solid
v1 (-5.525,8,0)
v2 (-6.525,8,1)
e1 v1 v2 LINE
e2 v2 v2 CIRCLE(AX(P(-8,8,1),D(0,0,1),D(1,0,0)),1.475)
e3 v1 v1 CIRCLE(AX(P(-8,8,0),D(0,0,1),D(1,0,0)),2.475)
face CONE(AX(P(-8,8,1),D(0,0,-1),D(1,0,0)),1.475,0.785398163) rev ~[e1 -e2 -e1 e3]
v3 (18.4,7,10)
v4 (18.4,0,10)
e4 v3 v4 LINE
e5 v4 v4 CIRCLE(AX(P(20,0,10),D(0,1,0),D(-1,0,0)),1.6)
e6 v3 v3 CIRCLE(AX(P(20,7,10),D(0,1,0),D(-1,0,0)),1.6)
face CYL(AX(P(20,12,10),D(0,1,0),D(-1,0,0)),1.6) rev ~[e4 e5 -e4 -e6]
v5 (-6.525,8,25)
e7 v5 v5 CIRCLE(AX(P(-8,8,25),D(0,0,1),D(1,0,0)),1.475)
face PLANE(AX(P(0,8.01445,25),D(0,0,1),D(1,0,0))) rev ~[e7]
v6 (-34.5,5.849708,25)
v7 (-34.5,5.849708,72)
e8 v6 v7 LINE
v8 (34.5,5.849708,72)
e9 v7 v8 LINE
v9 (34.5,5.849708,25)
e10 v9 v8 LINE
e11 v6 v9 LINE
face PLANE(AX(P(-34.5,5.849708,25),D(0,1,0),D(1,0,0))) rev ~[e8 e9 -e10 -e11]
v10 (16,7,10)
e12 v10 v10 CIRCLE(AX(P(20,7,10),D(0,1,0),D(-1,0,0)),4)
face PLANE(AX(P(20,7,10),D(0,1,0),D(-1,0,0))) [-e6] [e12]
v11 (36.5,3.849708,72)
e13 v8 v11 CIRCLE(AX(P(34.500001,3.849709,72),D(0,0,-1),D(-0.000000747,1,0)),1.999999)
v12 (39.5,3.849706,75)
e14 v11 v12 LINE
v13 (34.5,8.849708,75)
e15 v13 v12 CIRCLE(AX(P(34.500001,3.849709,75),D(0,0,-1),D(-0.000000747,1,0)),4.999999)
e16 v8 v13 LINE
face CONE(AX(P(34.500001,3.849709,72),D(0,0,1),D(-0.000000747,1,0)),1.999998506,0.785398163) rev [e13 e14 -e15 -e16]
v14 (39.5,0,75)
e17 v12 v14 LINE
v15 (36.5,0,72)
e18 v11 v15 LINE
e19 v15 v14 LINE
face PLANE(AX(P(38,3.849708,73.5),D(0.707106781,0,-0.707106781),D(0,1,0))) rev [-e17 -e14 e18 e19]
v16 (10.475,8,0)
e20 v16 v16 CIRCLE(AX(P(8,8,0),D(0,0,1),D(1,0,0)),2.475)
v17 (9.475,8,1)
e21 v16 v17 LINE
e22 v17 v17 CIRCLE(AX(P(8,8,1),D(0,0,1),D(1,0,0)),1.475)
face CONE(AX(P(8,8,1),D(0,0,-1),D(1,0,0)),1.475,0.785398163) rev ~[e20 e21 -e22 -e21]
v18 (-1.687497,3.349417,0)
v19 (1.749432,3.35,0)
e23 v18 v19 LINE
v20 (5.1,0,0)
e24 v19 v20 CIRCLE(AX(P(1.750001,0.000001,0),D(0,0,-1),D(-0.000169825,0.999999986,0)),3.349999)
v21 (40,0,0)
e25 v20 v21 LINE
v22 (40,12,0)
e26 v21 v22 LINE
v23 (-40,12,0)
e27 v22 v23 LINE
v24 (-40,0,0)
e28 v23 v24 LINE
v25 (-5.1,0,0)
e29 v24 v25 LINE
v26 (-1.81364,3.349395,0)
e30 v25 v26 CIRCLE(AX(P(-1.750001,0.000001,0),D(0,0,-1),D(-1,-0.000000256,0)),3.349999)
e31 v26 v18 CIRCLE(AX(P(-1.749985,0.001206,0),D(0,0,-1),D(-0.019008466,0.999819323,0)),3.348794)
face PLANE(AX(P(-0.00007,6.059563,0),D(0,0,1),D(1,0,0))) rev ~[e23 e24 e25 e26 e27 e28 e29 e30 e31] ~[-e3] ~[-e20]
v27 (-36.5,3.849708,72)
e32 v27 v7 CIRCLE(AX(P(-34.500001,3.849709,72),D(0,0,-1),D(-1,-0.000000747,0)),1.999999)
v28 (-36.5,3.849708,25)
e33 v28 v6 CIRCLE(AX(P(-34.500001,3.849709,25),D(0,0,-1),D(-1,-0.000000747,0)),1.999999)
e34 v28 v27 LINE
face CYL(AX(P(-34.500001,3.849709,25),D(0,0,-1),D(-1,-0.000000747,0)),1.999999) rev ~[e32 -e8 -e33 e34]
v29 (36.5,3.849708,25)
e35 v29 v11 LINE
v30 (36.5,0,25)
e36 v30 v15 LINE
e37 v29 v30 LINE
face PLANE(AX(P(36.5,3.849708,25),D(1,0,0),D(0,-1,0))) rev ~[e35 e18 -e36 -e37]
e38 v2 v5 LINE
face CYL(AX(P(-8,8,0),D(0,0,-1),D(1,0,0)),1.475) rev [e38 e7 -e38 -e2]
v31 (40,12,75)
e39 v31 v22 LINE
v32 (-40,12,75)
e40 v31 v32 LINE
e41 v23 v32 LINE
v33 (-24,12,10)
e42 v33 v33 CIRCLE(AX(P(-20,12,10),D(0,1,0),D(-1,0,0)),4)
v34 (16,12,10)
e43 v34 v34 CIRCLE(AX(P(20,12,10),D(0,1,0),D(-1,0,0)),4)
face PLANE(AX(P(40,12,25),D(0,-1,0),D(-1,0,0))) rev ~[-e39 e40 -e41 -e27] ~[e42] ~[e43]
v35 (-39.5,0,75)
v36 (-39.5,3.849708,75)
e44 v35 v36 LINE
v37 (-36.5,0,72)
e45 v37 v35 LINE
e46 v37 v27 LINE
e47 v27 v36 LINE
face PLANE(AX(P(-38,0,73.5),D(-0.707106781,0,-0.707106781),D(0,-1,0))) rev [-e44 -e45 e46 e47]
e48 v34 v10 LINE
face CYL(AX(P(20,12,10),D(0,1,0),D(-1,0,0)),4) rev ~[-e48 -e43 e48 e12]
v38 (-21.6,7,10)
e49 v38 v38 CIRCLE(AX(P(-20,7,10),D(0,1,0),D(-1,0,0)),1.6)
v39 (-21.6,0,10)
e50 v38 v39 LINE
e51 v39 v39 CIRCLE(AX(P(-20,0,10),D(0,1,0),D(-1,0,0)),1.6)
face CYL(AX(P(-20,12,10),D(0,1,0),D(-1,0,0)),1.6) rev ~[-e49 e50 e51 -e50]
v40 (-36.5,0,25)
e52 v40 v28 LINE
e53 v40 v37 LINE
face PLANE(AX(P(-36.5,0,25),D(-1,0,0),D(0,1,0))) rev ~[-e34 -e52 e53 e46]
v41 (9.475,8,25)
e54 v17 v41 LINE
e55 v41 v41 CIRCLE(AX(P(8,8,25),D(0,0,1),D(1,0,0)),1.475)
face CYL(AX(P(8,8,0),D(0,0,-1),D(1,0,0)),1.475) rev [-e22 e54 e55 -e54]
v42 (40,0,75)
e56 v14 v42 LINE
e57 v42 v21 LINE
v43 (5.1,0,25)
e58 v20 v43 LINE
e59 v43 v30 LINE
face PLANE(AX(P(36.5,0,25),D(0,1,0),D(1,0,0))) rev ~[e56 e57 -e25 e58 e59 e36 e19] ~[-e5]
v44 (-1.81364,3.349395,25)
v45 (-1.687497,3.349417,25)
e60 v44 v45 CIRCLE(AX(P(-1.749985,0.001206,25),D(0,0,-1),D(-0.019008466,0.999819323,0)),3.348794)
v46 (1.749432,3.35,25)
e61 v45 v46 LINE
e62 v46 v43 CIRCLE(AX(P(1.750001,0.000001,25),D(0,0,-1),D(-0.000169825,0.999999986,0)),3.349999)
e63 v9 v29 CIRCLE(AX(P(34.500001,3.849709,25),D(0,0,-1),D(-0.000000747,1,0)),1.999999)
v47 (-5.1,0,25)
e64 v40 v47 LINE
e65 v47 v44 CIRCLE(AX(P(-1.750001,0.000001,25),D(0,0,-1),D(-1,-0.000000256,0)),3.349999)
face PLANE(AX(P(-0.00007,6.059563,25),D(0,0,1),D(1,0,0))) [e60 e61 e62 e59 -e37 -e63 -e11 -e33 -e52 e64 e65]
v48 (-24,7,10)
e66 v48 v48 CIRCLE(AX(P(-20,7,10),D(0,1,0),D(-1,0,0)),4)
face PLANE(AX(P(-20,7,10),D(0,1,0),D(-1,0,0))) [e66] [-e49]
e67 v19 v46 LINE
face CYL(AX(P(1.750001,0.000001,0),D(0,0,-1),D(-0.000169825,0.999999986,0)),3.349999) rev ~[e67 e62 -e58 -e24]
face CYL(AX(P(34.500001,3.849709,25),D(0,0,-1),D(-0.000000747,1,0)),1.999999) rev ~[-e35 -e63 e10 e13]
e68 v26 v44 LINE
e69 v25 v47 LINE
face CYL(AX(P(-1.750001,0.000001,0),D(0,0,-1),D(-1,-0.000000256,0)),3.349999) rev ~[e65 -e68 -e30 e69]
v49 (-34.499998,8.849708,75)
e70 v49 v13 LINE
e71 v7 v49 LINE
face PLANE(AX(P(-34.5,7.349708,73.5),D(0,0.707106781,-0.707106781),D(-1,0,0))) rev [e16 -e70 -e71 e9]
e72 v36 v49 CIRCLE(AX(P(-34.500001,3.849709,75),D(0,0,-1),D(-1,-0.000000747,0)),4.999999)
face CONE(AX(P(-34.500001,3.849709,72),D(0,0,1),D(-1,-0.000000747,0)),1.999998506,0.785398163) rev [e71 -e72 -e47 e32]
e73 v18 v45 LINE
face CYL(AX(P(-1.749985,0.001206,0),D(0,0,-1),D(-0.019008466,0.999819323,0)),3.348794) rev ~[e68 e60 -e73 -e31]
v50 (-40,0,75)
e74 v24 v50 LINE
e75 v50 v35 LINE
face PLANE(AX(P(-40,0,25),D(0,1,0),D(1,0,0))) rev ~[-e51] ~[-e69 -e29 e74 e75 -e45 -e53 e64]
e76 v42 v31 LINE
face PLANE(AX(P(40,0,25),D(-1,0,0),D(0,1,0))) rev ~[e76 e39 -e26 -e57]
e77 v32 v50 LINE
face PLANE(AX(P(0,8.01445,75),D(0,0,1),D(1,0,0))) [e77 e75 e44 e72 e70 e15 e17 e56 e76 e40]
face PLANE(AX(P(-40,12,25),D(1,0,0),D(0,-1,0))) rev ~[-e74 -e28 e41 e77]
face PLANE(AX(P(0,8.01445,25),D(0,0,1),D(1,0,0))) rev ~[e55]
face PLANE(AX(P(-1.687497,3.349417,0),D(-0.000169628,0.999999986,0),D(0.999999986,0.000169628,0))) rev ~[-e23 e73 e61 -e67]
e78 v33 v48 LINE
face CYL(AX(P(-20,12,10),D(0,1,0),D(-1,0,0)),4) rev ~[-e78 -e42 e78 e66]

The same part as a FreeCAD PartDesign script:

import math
import FreeCAD as App
import Part
import Sketcher


def edges_at(feature, points):
    """Names of the edges that pass closest to the given points."""
    edges = feature.Shape.Edges
    near = lambda p: min(range(len(edges)), key=lambda i: edges[i].distToShape(Part.Vertex(*p))[0])
    return sorted({f"Edge{near(p) + 1}" for p in points})

doc = App.newDocument("Part")
body = doc.addObject("PartDesign::Body", "Body")

sketch1 = body.newObject("Sketcher::SketchObject", "Sketch")
sketch1.AttachmentSupport = (doc.getObject("XY_Plane"), [""])
sketch1.MapMode = "FlatFace"
sketch1.addGeometry([
    Part.ArcOfCircle(Part.Circle(App.Vector(-1.75, 0, 0), App.Vector(0, 0, 1), 3.35), math.radians(91), math.radians(180)),
    Part.ArcOfCircle(Part.Circle(App.Vector(-1.75, 0, 0), App.Vector(0, 0, 1), 3.35), math.radians(88.93), math.radians(91.09)),
    Part.LineSegment(App.Vector(-1.69, 3.35, 0), App.Vector(1.75, 3.35, 0)),
    Part.ArcOfCircle(Part.Circle(App.Vector(1.75, 0, 0), App.Vector(0, 0, 1), 3.35), math.radians(0), math.radians(90)),
    Part.LineSegment(App.Vector(5.1, 0, 0), App.Vector(40, 0, 0)),
    Part.LineSegment(App.Vector(40, 0, 0), App.Vector(40, 12, 0)),
    Part.LineSegment(App.Vector(40, 12, 0), App.Vector(-40, 12, 0)),
    Part.LineSegment(App.Vector(-40, 12, 0), App.Vector(-40, 0, 0)),
    Part.LineSegment(App.Vector(-40, 0, 0), App.Vector(-5.1, 0, 0)),
    Part.Circle(App.Vector(-8, 8, 0), App.Vector(0, 0, 1), 1.48),
    Part.Circle(App.Vector(8, 8, 0), App.Vector(0, 0, 1), 1.48),
], False)
sketch1.addConstraint([
    Sketcher.Constraint("Coincident", 0, 1, 1, 2),
    Sketcher.Constraint("Coincident", 1, 1, 2, 1),
    Sketcher.Constraint("Tangent", 2, 2, 3, 2),
    Sketcher.Constraint("Coincident", 3, 1, 4, 1),
    Sketcher.Constraint("Coincident", 4, 2, 5, 1),
    Sketcher.Constraint("Coincident", 5, 2, 6, 1),
    Sketcher.Constraint("Coincident", 6, 2, 7, 1),
    Sketcher.Constraint("Coincident", 7, 2, 8, 1),
    Sketcher.Constraint("Coincident", 8, 2, 0, 2),
    Sketcher.Constraint("Horizontal", 4),
    Sketcher.Constraint("Vertical", 5),
    Sketcher.Constraint("Horizontal", 6),
    Sketcher.Constraint("Vertical", 7),
    Sketcher.Constraint("Horizontal", 8),
    Sketcher.Constraint("Equal", 0, 3),
    Sketcher.Constraint("Equal", 9, 10),
    Sketcher.Constraint("Symmetric", 0, 3, 3, 3, -1, 1),
    Sketcher.Constraint("Symmetric", 4, 2, 7, 2, -1, 1),
    Sketcher.Constraint("Symmetric", 9, 3, 10, 3, -2),
    Sketcher.Constraint("PointOnObject", 0, 3, -1),
    Sketcher.Constraint("PointOnObject", 3, 1, -1),
    Sketcher.Constraint("Diameter", 9, 2.95),
    Sketcher.Constraint("DistanceX", 6, 2, 6, 1, 80.0),
    Sketcher.Constraint("DistanceY", 5, 1, 5, 2, 12.0),
    Sketcher.Constraint("Radius", 0, 3.349999),
    Sketcher.Constraint("DistanceX", 4, 1, 4, 2, 34.9),
    Sketcher.Constraint("DistanceX", 9, 3, -1, 1, 8.0),
    Sketcher.Constraint("DistanceY", -1, 1, 9, 3, 8.0),
    Sketcher.Constraint("Radius", 1, 3.348794),
    Sketcher.Constraint("Distance", 2, 3.436929),
    Sketcher.Constraint("DistanceX", 0, 1, -1, 1, 1.81364),
    Sketcher.Constraint("DistanceY", 1, 3, 0, 1, 3.348189),
])
pad1 = body.newObject("PartDesign::Pad", "Pad")
pad1.Profile = sketch1
pad1.Length = 25

sketch2 = body.newObject("Sketcher::SketchObject", "Sketch001")
sketch2.AttachmentSupport = (doc.getObject("XZ_Plane"), [""])
sketch2.MapMode = "FlatFace"
sketch2.AttachmentOffset = App.Placement(App.Vector(0, 0, -12), App.Rotation())
sketch2.addGeometry([
    Part.Circle(App.Vector(20, 10, 0), App.Vector(0, 0, 1), 1.6),
    Part.Circle(App.Vector(-20, 10, 0), App.Vector(0, 0, 1), 1.6),
], False)
sketch2.addConstraint([
    Sketcher.Constraint("Equal", 0, 1),
    Sketcher.Constraint("Symmetric", 0, 3, 1, 3, -2),
    Sketcher.Constraint("Diameter", 0, 3.2),
    Sketcher.Constraint("DistanceX", -1, 1, 0, 3, 20.0),
    Sketcher.Constraint("DistanceY", -1, 1, 0, 3, 10.0),
])
pocket1 = body.newObject("PartDesign::Pocket", "Pocket")
pocket1.Profile = sketch2
pocket1.Length = 30
pocket1.Reversed = True

sketch3 = body.newObject("Sketcher::SketchObject", "Sketch002")
sketch3.AttachmentSupport = (doc.getObject("XZ_Plane"), [""])
sketch3.MapMode = "FlatFace"
sketch3.AttachmentOffset = App.Placement(App.Vector(0, 0, -12), App.Rotation())
sketch3.addGeometry([
    Part.Circle(App.Vector(20, 10, 0), App.Vector(0, 0, 1), 4),
    Part.Circle(App.Vector(20, 10, 0), App.Vector(0, 0, 1), 1.6),
    Part.Circle(App.Vector(-20, 10, 0), App.Vector(0, 0, 1), 4),
    Part.Circle(App.Vector(-20, 10, 0), App.Vector(0, 0, 1), 1.6),
], False)
sketch3.addConstraint([
    Sketcher.Constraint("Coincident", 1, 3, 0, 3),
    Sketcher.Constraint("Coincident", 3, 3, 2, 3),
    Sketcher.Constraint("Equal", 0, 2),
    Sketcher.Constraint("Equal", 1, 3),
    Sketcher.Constraint("Symmetric", 0, 3, 2, 3, -2),
    Sketcher.Constraint("Diameter", 0, 8.0),
    Sketcher.Constraint("Diameter", 1, 3.2),
    Sketcher.Constraint("DistanceX", -1, 1, 0, 3, 20.0),
    Sketcher.Constraint("DistanceY", -1, 1, 0, 3, 10.0),
])
pocket2 = body.newObject("PartDesign::Pocket", "Pocket001")
pocket2.Profile = sketch3
pocket2.Length = 5
pocket2.Reversed = True

sketch4 = body.newObject("Sketcher::SketchObject", "Sketch003")
sketch4.AttachmentSupport = (doc.getObject("XY_Plane"), [""])
sketch4.MapMode = "FlatFace"
sketch4.AttachmentOffset = App.Placement(App.Vector(0, 0, 25), App.Rotation())
sketch4.addGeometry([
    Part.LineSegment(App.Vector(40, 12, 0), App.Vector(-40, 12, 0)),
    Part.LineSegment(App.Vector(-40, 12, 0), App.Vector(-40, 0, 0)),
    Part.LineSegment(App.Vector(-40, 0, 0), App.Vector(-36.5, 0, 0)),
    Part.LineSegment(App.Vector(-36.5, 0, 0), App.Vector(-36.5, 3.8, 0)),
    Part.ArcOfCircle(Part.Circle(App.Vector(-34.5, 3.8, 0), App.Vector(0, 0, 1), 2), math.radians(90), math.radians(180)),
    Part.LineSegment(App.Vector(-34.5, 5.8, 0), App.Vector(34.5, 5.8, 0)),
    Part.ArcOfCircle(Part.Circle(App.Vector(34.5, 3.8, 0), App.Vector(0, 0, 1), 2), math.radians(0), math.radians(90)),
    Part.LineSegment(App.Vector(36.5, 3.8, 0), App.Vector(36.5, 0, 0)),
    Part.LineSegment(App.Vector(36.5, 0, 0), App.Vector(40, 0, 0)),
    Part.LineSegment(App.Vector(40, 0, 0), App.Vector(40, 12, 0)),
], False)
sketch4.addConstraint([
    Sketcher.Constraint("Coincident", 0, 2, 1, 1),
    Sketcher.Constraint("Coincident", 1, 2, 2, 1),
    Sketcher.Constraint("Coincident", 2, 2, 3, 1),
    Sketcher.Constraint("Tangent", 3, 2, 4, 2),
    Sketcher.Constraint("Tangent", 4, 1, 5, 1),
    Sketcher.Constraint("Tangent", 5, 2, 6, 2),
    Sketcher.Constraint("Tangent", 6, 1, 7, 1),
    Sketcher.Constraint("Coincident", 7, 2, 8, 1),
    Sketcher.Constraint("Coincident", 8, 2, 9, 1),
    Sketcher.Constraint("Coincident", 9, 2, 0, 1),
    Sketcher.Constraint("Horizontal", 0),
    Sketcher.Constraint("Vertical", 1),
    Sketcher.Constraint("Horizontal", 2),
    Sketcher.Constraint("Vertical", 3),
    Sketcher.Constraint("Horizontal", 5),
    Sketcher.Constraint("Vertical", 7),
    Sketcher.Constraint("Horizontal", 8),
    Sketcher.Constraint("Vertical", 9),
    Sketcher.Constraint("Equal", 4, 6),
    Sketcher.Constraint("Symmetric", 2, 2, 7, 2, -1, 1),
    Sketcher.Constraint("Symmetric", 1, 2, 8, 2, -2),
    Sketcher.Constraint("Radius", 4, 1.999999),
    Sketcher.Constraint("DistanceX", 0, 2, 0, 1, 80.0),
    Sketcher.Constraint("DistanceX", 5, 1, 5, 2, 69.0),
    Sketcher.Constraint("DistanceY", 1, 2, 1, 1, 12.0),
    Sketcher.Constraint("DistanceY", 3, 1, 3, 2, 3.849708),
])
pad2 = body.newObject("PartDesign::Pad", "Pad001")
pad2.Profile = sketch4
pad2.Length = 50
doc.recompute()

chamfer = body.newObject("PartDesign::Chamfer", "Chamfer")
chamfer.Base = (pad2, edges_at(pad2, [(0, 5.85, 75)]))
chamfer.Size = 3

sketch5 = body.newObject("Sketcher::SketchObject", "Sketch004")
sketch5.AttachmentSupport = (doc.getObject("XY_Plane"), [""])
sketch5.MapMode = "FlatFace"
sketch5.addGeometry([
    Part.Circle(App.Vector(-8, 8, 0), App.Vector(0, 0, 1), 1.5),
    Part.Circle(App.Vector(8, 8, 0), App.Vector(0, 0, 1), 1.5),
], False)
sketch5.addConstraint([
    Sketcher.Constraint("Equal", 0, 1),
    Sketcher.Constraint("Symmetric", 0, 3, 1, 3, -2),
    Sketcher.Constraint("Diameter", 0, 2.95),
    Sketcher.Constraint("DistanceX", 0, 3, -1, 1, 8.0),
    Sketcher.Constraint("DistanceY", -1, 1, 0, 3, 8.0),
])
pocket3 = body.newObject("PartDesign::Pocket", "Pocket002")
pocket3.Profile = sketch5
pocket3.Length = 20
pocket3.Reversed = True
doc.recompute()

chamfer2 = body.newObject("PartDesign::Chamfer", "Chamfer001")
chamfer2.Base = (pocket3, edges_at(pocket3, [(-9.475, 8, 0), (6.525, 8, 0)]))
chamfer2.Size = 1

doc.recompute()
